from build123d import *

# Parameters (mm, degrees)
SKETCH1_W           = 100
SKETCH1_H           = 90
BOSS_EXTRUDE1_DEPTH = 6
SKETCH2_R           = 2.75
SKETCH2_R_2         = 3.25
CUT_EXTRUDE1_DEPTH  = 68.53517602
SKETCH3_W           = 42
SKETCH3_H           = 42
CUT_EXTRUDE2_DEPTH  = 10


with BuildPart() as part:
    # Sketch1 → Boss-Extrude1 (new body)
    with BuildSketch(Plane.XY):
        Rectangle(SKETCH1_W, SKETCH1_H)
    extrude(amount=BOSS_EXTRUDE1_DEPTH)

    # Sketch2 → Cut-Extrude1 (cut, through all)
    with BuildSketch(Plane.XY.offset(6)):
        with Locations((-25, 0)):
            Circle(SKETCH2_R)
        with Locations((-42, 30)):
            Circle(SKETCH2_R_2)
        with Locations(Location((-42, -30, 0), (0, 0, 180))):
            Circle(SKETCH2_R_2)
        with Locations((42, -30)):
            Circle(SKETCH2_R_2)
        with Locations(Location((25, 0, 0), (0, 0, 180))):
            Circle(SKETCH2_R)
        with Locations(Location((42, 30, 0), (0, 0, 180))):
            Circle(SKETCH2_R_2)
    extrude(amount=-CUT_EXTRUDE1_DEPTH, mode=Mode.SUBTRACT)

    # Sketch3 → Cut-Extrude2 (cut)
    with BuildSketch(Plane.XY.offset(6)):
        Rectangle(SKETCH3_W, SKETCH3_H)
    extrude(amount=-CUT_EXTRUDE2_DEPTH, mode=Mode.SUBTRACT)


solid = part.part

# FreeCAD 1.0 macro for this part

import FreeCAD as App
import Part
import Sketcher

V = App.Vector
Q = App.Units.Quantity


def add_polygon(sketch, points):
    """Adds a closed chain of lines whose ends are joined by coincident constraints."""
    first, n = sketch.GeometryCount, len(points)
    for a, b in zip(points, points[1:] + points[:1]):
        sketch.addGeometry(Part.LineSegment(App.Vector(*a, 0), App.Vector(*b, 0)), False)
    for i in range(n):
        sketch.addConstraint(Sketcher.Constraint("Coincident", first + i, 2, first + (i + 1) % n, 1))

doc = App.newDocument("Part")
body = doc.addObject("PartDesign::Body", "Body")

sketch1 = doc.addObject("Sketcher::SketchObject", "Sketch")
body.addObject(sketch1)
sketch1.AttachmentSupport = (doc.XY_Plane, [""])
sketch1.MapMode = "FlatFace"
add_polygon(sketch1, [(-50, 45), (-50, -45), (50, -45), (50, 45)])
sketch1.addConstraint([
    Sketcher.Constraint("Vertical", 0),
    Sketcher.Constraint("Horizontal", 1),
    Sketcher.Constraint("Vertical", 2),
    Sketcher.Constraint("Horizontal", 3),
    Sketcher.Constraint("Symmetric", 0, 2, 2, 2, -1, 1),
    Sketcher.Constraint("DistanceX", 1, 1, 1, 2, Q("100 mm")),
    Sketcher.Constraint("DistanceY", 0, 2, 0, 1, Q("90 mm")),
])
pad1 = doc.addObject("PartDesign::Pad", "Pad")
body.addObject(pad1)
pad1.Profile = sketch1
pad1.Length = 6

sketch2 = doc.addObject("Sketcher::SketchObject", "Sketch001")
body.addObject(sketch2)
sketch2.AttachmentSupport = (doc.XY_Plane, [""])
sketch2.MapMode = "FlatFace"
sketch2.AttachmentOffset = App.Placement(V(0, 0, 6), App.Rotation())
sketch2.addGeometry([
    Part.Circle(V(-25, 0, 0), V(0, 0, 1), 2.75),
    Part.Circle(V(-42, 30, 0), V(0, 0, 1), 3.25),
    Part.Circle(V(-42, -30, 0), V(0, 0, 1), 3.25),
    Part.Circle(V(42, -30, 0), V(0, 0, 1), 3.25),
    Part.Circle(V(25, 0, 0), V(0, 0, 1), 2.75),
    Part.Circle(V(42, 30, 0), V(0, 0, 1), 3.25),
], False)
sketch2.addConstraint([
    Sketcher.Constraint("Equal", 1, 2),
    Sketcher.Constraint("Equal", 2, 3),
    Sketcher.Constraint("Equal", 0, 4),
    Sketcher.Constraint("Equal", 3, 5),
    Sketcher.Constraint("Symmetric", 1, 3, 3, 3, -1, 1),
    Sketcher.Constraint("Symmetric", 0, 3, 4, 3, -1, 1),
    Sketcher.Constraint("Symmetric", 2, 3, 5, 3, -1, 1),
    Sketcher.Constraint("Symmetric", 2, 3, 3, 3, -2),
    Sketcher.Constraint("PointOnObject", 0, 3, -1),
    Sketcher.Constraint("Diameter", 0, Q("5.5 mm")),
    Sketcher.Constraint("Diameter", 1, Q("6.5 mm")),
    Sketcher.Constraint("DistanceX", 0, 3, -1, 1, Q("25 mm")),
    Sketcher.Constraint("DistanceX", 1, 3, -1, 1, Q("42 mm")),
    Sketcher.Constraint("DistanceY", -1, 1, 1, 3, Q("30 mm")),
])
pocket1 = doc.addObject("PartDesign::Pocket", "Pocket")
body.addObject(pocket1)
pocket1.Profile = sketch2
pocket1.Type = "ThroughAll"

sketch3 = doc.addObject("Sketcher::SketchObject", "Sketch002")
body.addObject(sketch3)
sketch3.AttachmentSupport = (doc.XY_Plane, [""])
sketch3.MapMode = "FlatFace"
sketch3.AttachmentOffset = App.Placement(V(0, 0, 6), App.Rotation())
add_polygon(sketch3, [(-21, 21), (-21, -21), (21, -21), (21, 21)])
sketch3.addConstraint([
    Sketcher.Constraint("Vertical", 0),
    Sketcher.Constraint("Horizontal", 1),
    Sketcher.Constraint("Vertical", 2),
    Sketcher.Constraint("Horizontal", 3),
    Sketcher.Constraint("Symmetric", 0, 2, 2, 2, -1, 1),
    Sketcher.Constraint("Equal", 3, 0),
    Sketcher.Constraint("DistanceX", 1, 1, 1, 2, Q("42 mm")),
])
pocket2 = doc.addObject("PartDesign::Pocket", "Pocket001")
body.addObject(pocket2)
pocket2.Profile = sketch3
pocket2.Length = 10

doc.recompute()
